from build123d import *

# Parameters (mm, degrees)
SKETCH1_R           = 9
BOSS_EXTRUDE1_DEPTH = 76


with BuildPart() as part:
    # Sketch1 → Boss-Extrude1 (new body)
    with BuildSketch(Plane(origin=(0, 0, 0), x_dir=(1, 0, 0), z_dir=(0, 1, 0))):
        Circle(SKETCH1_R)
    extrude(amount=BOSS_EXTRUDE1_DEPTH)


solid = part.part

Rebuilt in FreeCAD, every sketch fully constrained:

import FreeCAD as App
import Part
import Sketcher
from FreeCAD import Vector

doc = App.newDocument("Part")
body = doc.addObject("PartDesign::Body", "Body")

# Sketch on XZ plane
sketch1 = body.newObject("Sketcher::SketchObject", "Sketch")
sketch1.AttachmentSupport = (doc.getObject("XZ_Plane"), [""])
sketch1.MapMode = "FlatFace"
sketch1.addGeometry(Part.Circle(Vector(0, 0, 0), Vector(0, 0, 1), 9), False)
sketch1.addConstraint([
    Sketcher.Constraint("Coincident", 0, 3, -1, 1),
    Sketcher.Constraint("Diameter", 0, 18.0),
])
pad1 = body.newObject("PartDesign::Pad", "Pad")
pad1.Profile = sketch1
pad1.Length = 76
pad1.Reversed = True

doc.recompute()
